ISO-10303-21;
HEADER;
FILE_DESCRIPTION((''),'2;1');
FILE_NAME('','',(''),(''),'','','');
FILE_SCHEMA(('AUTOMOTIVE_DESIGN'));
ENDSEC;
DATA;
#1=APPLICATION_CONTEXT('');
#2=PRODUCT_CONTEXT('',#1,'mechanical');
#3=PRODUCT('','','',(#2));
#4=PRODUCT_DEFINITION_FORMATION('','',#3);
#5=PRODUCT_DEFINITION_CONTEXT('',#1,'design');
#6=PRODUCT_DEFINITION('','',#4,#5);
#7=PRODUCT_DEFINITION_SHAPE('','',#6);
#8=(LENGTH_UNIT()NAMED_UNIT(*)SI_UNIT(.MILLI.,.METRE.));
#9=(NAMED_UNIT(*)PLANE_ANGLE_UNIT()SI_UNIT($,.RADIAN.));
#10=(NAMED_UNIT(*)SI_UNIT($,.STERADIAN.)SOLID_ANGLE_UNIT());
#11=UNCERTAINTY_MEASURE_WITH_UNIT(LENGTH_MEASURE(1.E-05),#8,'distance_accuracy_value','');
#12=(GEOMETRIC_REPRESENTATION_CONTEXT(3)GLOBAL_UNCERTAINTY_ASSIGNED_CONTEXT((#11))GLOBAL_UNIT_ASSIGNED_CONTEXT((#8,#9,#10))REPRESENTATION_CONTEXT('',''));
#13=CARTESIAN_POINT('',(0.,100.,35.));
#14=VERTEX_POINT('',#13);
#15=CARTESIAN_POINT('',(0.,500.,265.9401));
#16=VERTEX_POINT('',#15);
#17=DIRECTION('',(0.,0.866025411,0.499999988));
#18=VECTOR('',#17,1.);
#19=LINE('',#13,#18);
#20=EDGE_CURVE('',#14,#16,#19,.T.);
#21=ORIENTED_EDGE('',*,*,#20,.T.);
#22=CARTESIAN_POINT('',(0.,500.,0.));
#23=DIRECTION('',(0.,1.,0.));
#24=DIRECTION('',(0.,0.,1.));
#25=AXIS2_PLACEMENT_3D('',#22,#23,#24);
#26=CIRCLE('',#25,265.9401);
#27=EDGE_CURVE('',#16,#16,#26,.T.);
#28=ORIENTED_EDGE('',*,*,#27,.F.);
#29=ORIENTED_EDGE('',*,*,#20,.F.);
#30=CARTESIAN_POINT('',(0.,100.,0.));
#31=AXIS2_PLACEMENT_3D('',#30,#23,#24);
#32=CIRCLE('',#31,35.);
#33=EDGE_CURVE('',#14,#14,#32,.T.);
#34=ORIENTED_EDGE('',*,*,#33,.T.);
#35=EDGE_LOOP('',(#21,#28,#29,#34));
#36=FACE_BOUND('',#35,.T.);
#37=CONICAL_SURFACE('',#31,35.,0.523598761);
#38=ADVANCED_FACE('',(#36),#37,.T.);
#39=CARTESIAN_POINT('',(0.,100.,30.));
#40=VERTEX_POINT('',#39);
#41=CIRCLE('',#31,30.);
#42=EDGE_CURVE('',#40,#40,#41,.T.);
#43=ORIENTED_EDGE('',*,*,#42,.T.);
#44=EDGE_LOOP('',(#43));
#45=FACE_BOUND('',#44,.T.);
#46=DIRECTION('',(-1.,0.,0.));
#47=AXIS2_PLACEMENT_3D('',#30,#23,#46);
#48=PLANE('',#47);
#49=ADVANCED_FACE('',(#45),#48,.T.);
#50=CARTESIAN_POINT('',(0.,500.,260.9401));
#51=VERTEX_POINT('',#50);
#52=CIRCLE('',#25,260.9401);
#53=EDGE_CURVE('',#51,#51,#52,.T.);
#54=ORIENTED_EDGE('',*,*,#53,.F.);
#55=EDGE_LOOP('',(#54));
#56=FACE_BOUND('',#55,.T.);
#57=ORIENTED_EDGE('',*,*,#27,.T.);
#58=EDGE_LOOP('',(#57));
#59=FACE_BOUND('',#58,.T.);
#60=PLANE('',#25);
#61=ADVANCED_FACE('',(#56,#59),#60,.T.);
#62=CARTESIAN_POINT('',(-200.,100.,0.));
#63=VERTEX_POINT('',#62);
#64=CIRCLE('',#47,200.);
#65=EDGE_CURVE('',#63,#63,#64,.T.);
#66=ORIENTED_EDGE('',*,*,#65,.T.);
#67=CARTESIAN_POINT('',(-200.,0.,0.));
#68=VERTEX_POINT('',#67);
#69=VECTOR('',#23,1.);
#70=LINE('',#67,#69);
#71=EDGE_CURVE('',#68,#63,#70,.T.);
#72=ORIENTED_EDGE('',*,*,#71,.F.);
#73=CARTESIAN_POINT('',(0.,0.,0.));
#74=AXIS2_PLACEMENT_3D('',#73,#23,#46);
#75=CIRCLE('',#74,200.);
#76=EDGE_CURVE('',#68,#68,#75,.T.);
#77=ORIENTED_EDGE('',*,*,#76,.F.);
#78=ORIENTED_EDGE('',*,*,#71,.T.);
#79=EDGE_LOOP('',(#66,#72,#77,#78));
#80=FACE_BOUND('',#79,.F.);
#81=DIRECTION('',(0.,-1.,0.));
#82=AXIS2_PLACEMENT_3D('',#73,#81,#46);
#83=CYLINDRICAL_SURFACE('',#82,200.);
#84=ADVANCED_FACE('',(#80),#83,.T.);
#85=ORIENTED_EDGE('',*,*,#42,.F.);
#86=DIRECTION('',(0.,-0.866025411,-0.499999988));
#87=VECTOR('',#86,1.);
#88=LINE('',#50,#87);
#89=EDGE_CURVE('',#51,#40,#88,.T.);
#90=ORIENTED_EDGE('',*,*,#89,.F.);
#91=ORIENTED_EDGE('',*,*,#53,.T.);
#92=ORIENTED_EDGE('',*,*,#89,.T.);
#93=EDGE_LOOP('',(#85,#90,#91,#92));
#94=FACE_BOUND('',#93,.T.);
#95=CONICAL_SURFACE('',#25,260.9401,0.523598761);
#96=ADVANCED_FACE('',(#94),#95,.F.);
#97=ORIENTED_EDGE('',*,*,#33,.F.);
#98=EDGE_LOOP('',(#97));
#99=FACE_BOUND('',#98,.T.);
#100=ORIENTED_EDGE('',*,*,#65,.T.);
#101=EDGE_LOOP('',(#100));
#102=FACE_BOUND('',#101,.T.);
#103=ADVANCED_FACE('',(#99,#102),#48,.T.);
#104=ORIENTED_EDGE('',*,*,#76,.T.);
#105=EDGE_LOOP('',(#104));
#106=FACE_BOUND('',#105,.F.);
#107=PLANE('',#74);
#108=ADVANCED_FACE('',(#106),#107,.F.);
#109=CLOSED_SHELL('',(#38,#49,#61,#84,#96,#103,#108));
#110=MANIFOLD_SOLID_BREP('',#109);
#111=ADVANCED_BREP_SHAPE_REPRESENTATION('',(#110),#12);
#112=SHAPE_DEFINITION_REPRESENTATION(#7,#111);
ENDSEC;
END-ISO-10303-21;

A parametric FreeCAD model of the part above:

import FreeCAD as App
import Part
import Sketcher

V = App.Vector
Q = App.Units.Quantity


def add_polygon(sketch, points):
    """Adds a closed chain of lines whose ends are joined by coincident constraints."""
    first, n = sketch.GeometryCount, len(points)
    for a, b in zip(points, points[1:] + points[:1]):
        sketch.addGeometry(Part.LineSegment(App.Vector(*a, 0), App.Vector(*b, 0)), False)
    for i in range(n):
        sketch.addConstraint(Sketcher.Constraint("Coincident", first + i, 2, first + (i + 1) % n, 1))

doc = App.newDocument("Part")
body = doc.addObject("PartDesign::Body", "Body")

sketch1 = body.newObject("Sketcher::SketchObject", "Sketch")
sketch1.AttachmentSupport = (doc.getObject("XZ_Plane"), [""])
sketch1.MapMode = "FlatFace"
sketch1.addGeometry(Part.Circle(V(0, 0, 0), V(0, 0, 1), 200), False)
sketch1.addConstraint(Sketcher.Constraint("Coincident", 0, 3, -1, 1))
sketch1.addConstraint(Sketcher.Constraint("Diameter", 0, 400.0))
pad1 = body.newObject("PartDesign::Pad", "Pad")
pad1.Profile = sketch1
pad1.Length = 100
pad1.Reversed = True

sketch2 = body.newObject("Sketcher::SketchObject", "Sketch001")
sketch2.AttachmentSupport = (doc.getObject("YZ_Plane"), [""])
sketch2.MapMode = "FlatFace"
add_polygon(sketch2, [(100, 35), (100, 30), (500, 260.9401), (500, 265.9401)])
sketch2.addConstraint(Sketcher.Constraint("Vertical", 0))
sketch2.addConstraint(Sketcher.Constraint("Vertical", 2))
sketch2.addConstraint(Sketcher.Constraint("Parallel", 1, 3))
sketch2.addConstraint(Sketcher.Constraint("DistanceY", 0, 2, 0, 1, 5.0))
sketch2.addConstraint(Sketcher.Constraint("DistanceY", -1, 1, 3, 2, 35.0))
sketch2.addConstraint(Sketcher.Constraint("DistanceX", 0, 2, 1, 2, 400.0))
sketch2.addConstraint(Sketcher.Constraint("Angle", 1, Q("30 deg")))
sketch2.addConstraint(Sketcher.Constraint("DistanceX", -1, 1, 0, 2, 100.0))
revolution = body.newObject("PartDesign::Revolution", "Revolution")
revolution.Profile = sketch2
revolution.ReferenceAxis = (sketch2, ["H_Axis"])
revolution.Angle = 360

doc.recompute()
